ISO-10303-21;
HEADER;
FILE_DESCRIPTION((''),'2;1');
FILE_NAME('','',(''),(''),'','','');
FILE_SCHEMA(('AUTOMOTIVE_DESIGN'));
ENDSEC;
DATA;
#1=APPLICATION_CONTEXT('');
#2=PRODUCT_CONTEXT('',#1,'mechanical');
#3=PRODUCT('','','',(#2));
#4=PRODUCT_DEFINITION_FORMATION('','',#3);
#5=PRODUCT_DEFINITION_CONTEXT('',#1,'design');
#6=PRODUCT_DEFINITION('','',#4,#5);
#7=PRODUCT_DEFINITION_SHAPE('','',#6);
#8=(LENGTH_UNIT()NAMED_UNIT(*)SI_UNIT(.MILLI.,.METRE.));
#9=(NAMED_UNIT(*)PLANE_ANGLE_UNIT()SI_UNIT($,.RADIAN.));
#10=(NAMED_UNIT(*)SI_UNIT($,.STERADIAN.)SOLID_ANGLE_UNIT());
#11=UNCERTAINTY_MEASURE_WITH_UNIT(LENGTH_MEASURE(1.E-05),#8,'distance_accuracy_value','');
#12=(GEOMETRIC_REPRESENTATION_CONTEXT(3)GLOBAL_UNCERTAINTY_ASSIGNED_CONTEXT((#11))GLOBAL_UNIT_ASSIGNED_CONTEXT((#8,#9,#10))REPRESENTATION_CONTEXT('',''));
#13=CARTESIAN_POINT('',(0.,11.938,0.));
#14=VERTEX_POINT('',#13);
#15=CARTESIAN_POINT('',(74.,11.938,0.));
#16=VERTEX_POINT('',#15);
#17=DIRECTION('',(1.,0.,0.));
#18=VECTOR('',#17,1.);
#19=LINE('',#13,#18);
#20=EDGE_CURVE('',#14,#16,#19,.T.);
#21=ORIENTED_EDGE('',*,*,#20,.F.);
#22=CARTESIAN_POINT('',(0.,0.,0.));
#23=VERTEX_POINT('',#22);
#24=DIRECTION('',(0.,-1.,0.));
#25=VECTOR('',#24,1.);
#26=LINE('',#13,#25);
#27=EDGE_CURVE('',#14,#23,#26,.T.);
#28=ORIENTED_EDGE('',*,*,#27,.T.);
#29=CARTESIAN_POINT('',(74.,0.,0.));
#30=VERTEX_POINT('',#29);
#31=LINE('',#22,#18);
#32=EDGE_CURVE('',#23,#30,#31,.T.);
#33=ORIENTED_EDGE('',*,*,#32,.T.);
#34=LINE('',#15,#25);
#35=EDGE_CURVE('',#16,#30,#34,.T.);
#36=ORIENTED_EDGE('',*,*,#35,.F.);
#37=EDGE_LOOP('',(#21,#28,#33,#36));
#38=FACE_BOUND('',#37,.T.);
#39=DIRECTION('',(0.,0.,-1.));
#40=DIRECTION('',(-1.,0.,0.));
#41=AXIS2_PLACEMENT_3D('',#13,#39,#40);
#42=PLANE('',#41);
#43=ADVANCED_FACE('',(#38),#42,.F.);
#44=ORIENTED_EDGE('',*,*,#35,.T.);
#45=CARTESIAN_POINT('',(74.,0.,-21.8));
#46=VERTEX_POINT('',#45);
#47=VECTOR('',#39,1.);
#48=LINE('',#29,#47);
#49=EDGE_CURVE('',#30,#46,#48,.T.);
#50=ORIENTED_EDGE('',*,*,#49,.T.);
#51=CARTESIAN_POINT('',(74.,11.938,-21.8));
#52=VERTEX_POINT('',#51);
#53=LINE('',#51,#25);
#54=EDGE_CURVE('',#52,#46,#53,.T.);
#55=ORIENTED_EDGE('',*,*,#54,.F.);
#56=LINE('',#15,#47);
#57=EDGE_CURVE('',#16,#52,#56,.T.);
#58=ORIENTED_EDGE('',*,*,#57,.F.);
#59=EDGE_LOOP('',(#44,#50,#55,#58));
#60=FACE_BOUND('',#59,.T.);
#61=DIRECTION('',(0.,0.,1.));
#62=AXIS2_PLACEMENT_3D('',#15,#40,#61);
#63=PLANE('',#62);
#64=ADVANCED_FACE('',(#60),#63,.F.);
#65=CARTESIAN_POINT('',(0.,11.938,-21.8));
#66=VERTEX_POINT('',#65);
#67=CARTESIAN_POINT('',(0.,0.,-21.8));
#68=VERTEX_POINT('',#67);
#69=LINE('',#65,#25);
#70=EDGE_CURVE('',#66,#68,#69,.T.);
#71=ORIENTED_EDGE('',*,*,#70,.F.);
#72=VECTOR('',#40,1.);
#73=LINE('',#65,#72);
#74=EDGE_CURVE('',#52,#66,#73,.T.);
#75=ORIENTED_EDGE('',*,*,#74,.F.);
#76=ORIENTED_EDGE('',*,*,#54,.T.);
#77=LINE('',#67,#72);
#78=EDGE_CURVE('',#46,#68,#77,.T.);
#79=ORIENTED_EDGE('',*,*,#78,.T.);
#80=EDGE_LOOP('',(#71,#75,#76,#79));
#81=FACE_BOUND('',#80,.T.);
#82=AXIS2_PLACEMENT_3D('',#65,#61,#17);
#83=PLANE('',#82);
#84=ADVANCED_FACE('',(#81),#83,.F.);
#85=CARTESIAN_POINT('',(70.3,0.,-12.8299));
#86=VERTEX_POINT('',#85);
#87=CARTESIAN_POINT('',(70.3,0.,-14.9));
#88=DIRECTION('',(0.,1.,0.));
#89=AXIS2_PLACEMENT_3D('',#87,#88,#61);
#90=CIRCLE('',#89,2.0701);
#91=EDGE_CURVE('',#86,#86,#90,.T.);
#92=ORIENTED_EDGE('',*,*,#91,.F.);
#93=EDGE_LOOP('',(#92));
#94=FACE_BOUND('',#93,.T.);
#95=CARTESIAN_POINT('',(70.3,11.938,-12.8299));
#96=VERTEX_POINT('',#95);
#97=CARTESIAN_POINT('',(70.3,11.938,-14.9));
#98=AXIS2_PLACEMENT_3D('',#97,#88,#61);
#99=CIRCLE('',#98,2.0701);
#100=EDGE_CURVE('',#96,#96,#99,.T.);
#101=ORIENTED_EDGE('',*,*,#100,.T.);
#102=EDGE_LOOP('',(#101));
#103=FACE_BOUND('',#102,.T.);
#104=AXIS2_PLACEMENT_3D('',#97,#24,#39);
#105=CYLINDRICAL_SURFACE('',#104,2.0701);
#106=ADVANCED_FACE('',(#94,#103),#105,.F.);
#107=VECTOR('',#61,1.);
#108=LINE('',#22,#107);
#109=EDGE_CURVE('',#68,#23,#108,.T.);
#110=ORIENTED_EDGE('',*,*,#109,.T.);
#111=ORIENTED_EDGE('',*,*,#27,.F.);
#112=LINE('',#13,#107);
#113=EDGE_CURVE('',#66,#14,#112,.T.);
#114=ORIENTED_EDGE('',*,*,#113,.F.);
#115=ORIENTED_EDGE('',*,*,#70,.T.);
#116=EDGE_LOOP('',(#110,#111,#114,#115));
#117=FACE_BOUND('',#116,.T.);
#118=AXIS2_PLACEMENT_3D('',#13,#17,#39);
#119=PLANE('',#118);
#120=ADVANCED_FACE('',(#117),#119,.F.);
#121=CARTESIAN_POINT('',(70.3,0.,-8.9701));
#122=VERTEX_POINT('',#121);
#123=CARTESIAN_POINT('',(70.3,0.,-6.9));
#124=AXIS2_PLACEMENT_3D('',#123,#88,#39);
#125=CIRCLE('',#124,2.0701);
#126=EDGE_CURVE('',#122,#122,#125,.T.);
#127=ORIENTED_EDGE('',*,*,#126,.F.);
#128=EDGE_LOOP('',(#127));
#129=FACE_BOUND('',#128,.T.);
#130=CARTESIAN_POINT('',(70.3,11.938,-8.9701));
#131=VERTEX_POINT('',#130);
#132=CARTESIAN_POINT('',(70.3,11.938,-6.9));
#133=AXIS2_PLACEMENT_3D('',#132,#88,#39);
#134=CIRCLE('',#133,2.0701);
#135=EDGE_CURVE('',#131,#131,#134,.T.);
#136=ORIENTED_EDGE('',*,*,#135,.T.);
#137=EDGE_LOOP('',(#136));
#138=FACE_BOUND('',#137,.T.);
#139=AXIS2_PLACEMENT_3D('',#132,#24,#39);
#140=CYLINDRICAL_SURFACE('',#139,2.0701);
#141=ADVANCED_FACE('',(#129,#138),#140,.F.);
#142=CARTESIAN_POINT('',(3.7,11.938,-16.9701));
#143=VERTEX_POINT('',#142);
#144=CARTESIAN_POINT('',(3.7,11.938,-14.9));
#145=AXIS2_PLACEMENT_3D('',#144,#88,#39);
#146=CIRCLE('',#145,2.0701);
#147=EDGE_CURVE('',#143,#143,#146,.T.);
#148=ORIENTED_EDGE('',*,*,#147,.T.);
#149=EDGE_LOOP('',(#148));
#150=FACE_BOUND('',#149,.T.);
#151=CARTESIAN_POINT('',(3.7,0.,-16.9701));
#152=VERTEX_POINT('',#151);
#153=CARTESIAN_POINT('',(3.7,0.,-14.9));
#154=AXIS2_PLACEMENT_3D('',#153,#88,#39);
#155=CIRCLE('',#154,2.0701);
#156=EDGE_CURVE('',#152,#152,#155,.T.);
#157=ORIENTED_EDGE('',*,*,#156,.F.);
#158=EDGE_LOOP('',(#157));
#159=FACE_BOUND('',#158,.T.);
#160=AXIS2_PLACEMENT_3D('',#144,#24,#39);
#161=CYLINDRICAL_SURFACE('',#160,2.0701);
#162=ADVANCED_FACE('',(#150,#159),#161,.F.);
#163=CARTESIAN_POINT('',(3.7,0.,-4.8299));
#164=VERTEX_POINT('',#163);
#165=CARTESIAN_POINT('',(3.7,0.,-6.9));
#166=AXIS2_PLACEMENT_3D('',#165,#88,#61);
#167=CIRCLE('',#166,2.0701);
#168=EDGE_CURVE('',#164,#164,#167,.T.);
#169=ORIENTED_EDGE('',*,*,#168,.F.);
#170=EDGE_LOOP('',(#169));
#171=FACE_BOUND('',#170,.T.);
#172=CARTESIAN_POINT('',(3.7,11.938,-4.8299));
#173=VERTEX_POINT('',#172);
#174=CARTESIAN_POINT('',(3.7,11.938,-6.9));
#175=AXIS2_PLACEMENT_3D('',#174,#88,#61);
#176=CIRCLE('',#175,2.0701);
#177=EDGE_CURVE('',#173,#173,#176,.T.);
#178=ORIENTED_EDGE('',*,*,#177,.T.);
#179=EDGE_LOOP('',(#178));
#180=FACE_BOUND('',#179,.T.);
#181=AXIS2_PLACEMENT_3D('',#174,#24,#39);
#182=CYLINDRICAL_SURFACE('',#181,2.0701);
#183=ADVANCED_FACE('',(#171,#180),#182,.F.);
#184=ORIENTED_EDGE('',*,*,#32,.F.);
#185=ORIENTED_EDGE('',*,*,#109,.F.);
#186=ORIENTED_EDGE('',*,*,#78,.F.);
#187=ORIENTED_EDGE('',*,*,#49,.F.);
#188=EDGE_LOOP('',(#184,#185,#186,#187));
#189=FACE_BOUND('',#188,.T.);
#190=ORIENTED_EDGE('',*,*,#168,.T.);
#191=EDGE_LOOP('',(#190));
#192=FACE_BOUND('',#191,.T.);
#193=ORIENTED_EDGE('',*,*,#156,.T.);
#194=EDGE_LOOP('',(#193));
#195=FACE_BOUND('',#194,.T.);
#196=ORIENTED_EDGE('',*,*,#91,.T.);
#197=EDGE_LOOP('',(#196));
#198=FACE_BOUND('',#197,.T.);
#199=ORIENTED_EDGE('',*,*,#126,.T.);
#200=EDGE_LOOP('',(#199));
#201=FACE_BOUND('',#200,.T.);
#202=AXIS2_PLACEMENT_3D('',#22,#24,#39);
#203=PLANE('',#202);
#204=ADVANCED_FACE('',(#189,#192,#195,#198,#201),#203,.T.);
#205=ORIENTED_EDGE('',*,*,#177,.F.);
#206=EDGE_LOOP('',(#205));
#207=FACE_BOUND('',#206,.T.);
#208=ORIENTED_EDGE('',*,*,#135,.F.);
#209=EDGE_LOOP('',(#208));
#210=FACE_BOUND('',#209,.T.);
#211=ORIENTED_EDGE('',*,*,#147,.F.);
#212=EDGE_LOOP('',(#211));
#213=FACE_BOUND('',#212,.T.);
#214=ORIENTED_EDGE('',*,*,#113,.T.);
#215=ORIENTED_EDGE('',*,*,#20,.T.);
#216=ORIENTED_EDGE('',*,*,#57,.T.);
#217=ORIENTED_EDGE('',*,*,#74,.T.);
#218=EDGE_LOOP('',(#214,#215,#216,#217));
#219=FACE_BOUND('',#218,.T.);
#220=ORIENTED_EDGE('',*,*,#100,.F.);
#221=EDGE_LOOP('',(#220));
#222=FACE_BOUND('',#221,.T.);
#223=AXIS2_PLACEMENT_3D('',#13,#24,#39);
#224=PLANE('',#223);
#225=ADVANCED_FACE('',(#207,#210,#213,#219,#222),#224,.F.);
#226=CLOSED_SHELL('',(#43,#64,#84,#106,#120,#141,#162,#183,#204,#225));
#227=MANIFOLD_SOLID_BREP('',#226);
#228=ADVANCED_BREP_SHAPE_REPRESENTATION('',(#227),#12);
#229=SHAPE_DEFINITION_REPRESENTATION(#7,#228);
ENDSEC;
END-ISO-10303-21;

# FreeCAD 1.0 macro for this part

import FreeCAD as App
import Part
import Sketcher
Q = App.Units.Quantity


def add_polygon(sketch, points):
    """Adds a closed chain of lines whose ends are joined by coincident constraints."""
    first, n = sketch.GeometryCount, len(points)
    for a, b in zip(points, points[1:] + points[:1]):
        sketch.addGeometry(Part.LineSegment(App.Vector(*a, 0), App.Vector(*b, 0)), False)
    for i in range(n):
        sketch.addConstraint(Sketcher.Constraint("Coincident", first + i, 2, first + (i + 1) % n, 1))

doc = App.newDocument("Part")
body = doc.addObject("PartDesign::Body", "Body")

sketch1 = body.newObject("Sketcher::SketchObject", "Sketch")
sketch1.AttachmentSupport = (doc.getObject("XZ_Plane"), [""])
sketch1.MapMode = "FlatFace"
add_polygon(sketch1, [(0, -21.8), (0, 0), (74, 0), (74, -21.8)])
sketch1.addGeometry(Part.Circle(App.Vector(3.7, -6.9, 0), App.Vector(0, 0, 1), 2.1), False)
sketch1.addGeometry(Part.Circle(App.Vector(70.3, -6.9, 0), App.Vector(0, 0, 1), 2.1), False)
sketch1.addGeometry(Part.Circle(App.Vector(3.7, -14.9, 0), App.Vector(0, 0, 1), 2.1), False)
sketch1.addGeometry(Part.Circle(App.Vector(70.3, -14.9, 0), App.Vector(0, 0, 1), 2.1), False)
sketch1.addConstraint(Sketcher.Constraint("Vertical", 0))
sketch1.addConstraint(Sketcher.Constraint("Horizontal", 1))
sketch1.addConstraint(Sketcher.Constraint("Vertical", 2))
sketch1.addConstraint(Sketcher.Constraint("Horizontal", 3))
sketch1.addConstraint(Sketcher.Constraint("Coincident", 0, 2, -1, 1))
sketch1.addConstraint(Sketcher.Constraint("Equal", 4, 5))
sketch1.addConstraint(Sketcher.Constraint("Equal", 5, 6))
sketch1.addConstraint(Sketcher.Constraint("Equal", 6, 7))
sketch1.addConstraint(Sketcher.Constraint("Horizontal", 4, 3, 5, 3))
sketch1.addConstraint(Sketcher.Constraint("Horizontal", 6, 3, 7, 3))
sketch1.addConstraint(Sketcher.Constraint("Vertical", 4, 3, 6, 3))
sketch1.addConstraint(Sketcher.Constraint("Vertical", 5, 3, 7, 3))
sketch1.addConstraint(Sketcher.Constraint("DistanceX", 1, 1, 1, 2, Q("74 mm")))
sketch1.addConstraint(Sketcher.Constraint("DistanceY", 0, 1, 0, 2, Q("21.8 mm")))
sketch1.addConstraint(Sketcher.Constraint("DistanceY", 6, 3, 4, 3, Q("8 mm")))
sketch1.addConstraint(Sketcher.Constraint("Diameter", 4, Q("4.1402 mm")))
sketch1.addConstraint(Sketcher.Constraint("DistanceX", -1, 1, 4, 3, Q("3.7 mm")))
sketch1.addConstraint(Sketcher.Constraint("DistanceY", 4, 3, -1, 1, Q("6.9 mm")))
sketch1.addConstraint(Sketcher.Constraint("DistanceX", -1, 1, 5, 3, Q("70.3 mm")))
pad1 = body.newObject("PartDesign::Pad", "Pad")
pad1.Profile = sketch1
pad1.Length = 11.938
pad1.Reversed = True

doc.recompute()
